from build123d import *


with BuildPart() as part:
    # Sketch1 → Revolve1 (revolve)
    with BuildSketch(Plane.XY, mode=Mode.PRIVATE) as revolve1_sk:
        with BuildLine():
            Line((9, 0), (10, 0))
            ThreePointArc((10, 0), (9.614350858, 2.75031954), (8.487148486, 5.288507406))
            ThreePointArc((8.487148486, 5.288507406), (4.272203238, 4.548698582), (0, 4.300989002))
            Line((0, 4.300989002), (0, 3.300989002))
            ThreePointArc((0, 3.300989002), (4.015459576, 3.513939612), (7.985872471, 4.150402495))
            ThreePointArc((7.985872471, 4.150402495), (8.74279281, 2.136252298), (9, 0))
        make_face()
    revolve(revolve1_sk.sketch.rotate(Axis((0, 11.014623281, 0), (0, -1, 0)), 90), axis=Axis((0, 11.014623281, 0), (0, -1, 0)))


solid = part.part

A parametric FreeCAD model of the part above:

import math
import FreeCAD as App
import Part
import Sketcher

doc = App.newDocument("Part")
params = doc.addObject("Spreadsheet::Sheet", "Params")
for row, (alias, value) in enumerate([
    ("sketch1_radius", "10 mm"),
    ("sketch1_radius2", "9 mm"),
    ("revolution_angle", "360 deg"),
], start=1):
    params.set(f"A{row}", alias)
    params.set(f"B{row}", "=" + value)
    params.setAlias(f"B{row}", alias)

body = doc.addObject("PartDesign::Body", "Body")

# Sketch on XY plane
sketch1 = doc.addObject("Sketcher::SketchObject", "Sketch")
body.addObject(sketch1)
sketch1.AttachmentSupport = (doc.XY_Plane, [""])
sketch1.MapMode = "FlatFace"
sketch1.addGeometry([
    Part.LineSegment(App.Vector(9, 0, 0), App.Vector(10, 0, 0)),  # 0
    Part.ArcOfCircle(Part.Circle(App.Vector(0, 0, 0), App.Vector(0, 0, 1), 10), math.radians(0), math.radians(32)),  # 1
    Part.ArcOfCircle(Part.Circle(App.Vector(0, 41.3, 0), App.Vector(0, 0, 1), 37), math.radians(-90), math.radians(-76.73)),  # 2
    Part.LineSegment(App.Vector(0, 4.3, 0), App.Vector(0, 3.3, 0)),  # 3
    Part.ArcOfCircle(Part.Circle(App.Vector(0, 41.3, 0), App.Vector(0, 0, 1), 38), math.radians(-90), math.radians(-77.86)),  # 4
    Part.ArcOfCircle(Part.Circle(App.Vector(0, 0, 0), App.Vector(0, 0, 1), 9), math.radians(0), math.radians(27)),  # 5
], False)
sketch1.addConstraint([
    Sketcher.Constraint("Coincident", 0, 2, 1, 1),
    Sketcher.Constraint("Coincident", 1, 2, 2, 2),
    Sketcher.Constraint("Coincident", 2, 1, 3, 1),
    Sketcher.Constraint("Coincident", 3, 2, 4, 1),
    Sketcher.Constraint("Coincident", 4, 2, 5, 2),
    Sketcher.Constraint("Coincident", 5, 1, 0, 1),
    Sketcher.Constraint("Horizontal", 0),
    Sketcher.Constraint("Vertical", 3),
    Sketcher.Constraint("Coincident", 1, 3, -1, 1),
    Sketcher.Constraint("Coincident", 5, 3, -1, 1),
    Sketcher.Constraint("Coincident", 4, 3, 2, 3),
    Sketcher.Constraint("PointOnObject", 2, 3, -2),
    Sketcher.Constraint("PointOnObject", 0, 2, -1),
    Sketcher.Constraint("PointOnObject", 2, 1, -2),
    Sketcher.Constraint("Equal", 0, 3),
    Sketcher.Constraint("Radius", 1, 10.0),
    Sketcher.Constraint("Radius", 5, 9.0),
    Sketcher.Constraint("Radius", 2, 36.964821),
    Sketcher.Constraint("DistanceY", -1, 1, 2, 3, 41.26581),
])
sketch1.setExpression("Constraints[15]", "Params.sketch1_radius")
sketch1.setExpression("Constraints[16]", "Params.sketch1_radius2")
revolution = doc.addObject("PartDesign::Revolution", "Revolution")
body.addObject(revolution)
revolution.Profile = sketch1
revolution.ReferenceAxis = (sketch1, ["V_Axis"])
revolution.setExpression("Angle", "Params.revolution_angle")

doc.recompute()
